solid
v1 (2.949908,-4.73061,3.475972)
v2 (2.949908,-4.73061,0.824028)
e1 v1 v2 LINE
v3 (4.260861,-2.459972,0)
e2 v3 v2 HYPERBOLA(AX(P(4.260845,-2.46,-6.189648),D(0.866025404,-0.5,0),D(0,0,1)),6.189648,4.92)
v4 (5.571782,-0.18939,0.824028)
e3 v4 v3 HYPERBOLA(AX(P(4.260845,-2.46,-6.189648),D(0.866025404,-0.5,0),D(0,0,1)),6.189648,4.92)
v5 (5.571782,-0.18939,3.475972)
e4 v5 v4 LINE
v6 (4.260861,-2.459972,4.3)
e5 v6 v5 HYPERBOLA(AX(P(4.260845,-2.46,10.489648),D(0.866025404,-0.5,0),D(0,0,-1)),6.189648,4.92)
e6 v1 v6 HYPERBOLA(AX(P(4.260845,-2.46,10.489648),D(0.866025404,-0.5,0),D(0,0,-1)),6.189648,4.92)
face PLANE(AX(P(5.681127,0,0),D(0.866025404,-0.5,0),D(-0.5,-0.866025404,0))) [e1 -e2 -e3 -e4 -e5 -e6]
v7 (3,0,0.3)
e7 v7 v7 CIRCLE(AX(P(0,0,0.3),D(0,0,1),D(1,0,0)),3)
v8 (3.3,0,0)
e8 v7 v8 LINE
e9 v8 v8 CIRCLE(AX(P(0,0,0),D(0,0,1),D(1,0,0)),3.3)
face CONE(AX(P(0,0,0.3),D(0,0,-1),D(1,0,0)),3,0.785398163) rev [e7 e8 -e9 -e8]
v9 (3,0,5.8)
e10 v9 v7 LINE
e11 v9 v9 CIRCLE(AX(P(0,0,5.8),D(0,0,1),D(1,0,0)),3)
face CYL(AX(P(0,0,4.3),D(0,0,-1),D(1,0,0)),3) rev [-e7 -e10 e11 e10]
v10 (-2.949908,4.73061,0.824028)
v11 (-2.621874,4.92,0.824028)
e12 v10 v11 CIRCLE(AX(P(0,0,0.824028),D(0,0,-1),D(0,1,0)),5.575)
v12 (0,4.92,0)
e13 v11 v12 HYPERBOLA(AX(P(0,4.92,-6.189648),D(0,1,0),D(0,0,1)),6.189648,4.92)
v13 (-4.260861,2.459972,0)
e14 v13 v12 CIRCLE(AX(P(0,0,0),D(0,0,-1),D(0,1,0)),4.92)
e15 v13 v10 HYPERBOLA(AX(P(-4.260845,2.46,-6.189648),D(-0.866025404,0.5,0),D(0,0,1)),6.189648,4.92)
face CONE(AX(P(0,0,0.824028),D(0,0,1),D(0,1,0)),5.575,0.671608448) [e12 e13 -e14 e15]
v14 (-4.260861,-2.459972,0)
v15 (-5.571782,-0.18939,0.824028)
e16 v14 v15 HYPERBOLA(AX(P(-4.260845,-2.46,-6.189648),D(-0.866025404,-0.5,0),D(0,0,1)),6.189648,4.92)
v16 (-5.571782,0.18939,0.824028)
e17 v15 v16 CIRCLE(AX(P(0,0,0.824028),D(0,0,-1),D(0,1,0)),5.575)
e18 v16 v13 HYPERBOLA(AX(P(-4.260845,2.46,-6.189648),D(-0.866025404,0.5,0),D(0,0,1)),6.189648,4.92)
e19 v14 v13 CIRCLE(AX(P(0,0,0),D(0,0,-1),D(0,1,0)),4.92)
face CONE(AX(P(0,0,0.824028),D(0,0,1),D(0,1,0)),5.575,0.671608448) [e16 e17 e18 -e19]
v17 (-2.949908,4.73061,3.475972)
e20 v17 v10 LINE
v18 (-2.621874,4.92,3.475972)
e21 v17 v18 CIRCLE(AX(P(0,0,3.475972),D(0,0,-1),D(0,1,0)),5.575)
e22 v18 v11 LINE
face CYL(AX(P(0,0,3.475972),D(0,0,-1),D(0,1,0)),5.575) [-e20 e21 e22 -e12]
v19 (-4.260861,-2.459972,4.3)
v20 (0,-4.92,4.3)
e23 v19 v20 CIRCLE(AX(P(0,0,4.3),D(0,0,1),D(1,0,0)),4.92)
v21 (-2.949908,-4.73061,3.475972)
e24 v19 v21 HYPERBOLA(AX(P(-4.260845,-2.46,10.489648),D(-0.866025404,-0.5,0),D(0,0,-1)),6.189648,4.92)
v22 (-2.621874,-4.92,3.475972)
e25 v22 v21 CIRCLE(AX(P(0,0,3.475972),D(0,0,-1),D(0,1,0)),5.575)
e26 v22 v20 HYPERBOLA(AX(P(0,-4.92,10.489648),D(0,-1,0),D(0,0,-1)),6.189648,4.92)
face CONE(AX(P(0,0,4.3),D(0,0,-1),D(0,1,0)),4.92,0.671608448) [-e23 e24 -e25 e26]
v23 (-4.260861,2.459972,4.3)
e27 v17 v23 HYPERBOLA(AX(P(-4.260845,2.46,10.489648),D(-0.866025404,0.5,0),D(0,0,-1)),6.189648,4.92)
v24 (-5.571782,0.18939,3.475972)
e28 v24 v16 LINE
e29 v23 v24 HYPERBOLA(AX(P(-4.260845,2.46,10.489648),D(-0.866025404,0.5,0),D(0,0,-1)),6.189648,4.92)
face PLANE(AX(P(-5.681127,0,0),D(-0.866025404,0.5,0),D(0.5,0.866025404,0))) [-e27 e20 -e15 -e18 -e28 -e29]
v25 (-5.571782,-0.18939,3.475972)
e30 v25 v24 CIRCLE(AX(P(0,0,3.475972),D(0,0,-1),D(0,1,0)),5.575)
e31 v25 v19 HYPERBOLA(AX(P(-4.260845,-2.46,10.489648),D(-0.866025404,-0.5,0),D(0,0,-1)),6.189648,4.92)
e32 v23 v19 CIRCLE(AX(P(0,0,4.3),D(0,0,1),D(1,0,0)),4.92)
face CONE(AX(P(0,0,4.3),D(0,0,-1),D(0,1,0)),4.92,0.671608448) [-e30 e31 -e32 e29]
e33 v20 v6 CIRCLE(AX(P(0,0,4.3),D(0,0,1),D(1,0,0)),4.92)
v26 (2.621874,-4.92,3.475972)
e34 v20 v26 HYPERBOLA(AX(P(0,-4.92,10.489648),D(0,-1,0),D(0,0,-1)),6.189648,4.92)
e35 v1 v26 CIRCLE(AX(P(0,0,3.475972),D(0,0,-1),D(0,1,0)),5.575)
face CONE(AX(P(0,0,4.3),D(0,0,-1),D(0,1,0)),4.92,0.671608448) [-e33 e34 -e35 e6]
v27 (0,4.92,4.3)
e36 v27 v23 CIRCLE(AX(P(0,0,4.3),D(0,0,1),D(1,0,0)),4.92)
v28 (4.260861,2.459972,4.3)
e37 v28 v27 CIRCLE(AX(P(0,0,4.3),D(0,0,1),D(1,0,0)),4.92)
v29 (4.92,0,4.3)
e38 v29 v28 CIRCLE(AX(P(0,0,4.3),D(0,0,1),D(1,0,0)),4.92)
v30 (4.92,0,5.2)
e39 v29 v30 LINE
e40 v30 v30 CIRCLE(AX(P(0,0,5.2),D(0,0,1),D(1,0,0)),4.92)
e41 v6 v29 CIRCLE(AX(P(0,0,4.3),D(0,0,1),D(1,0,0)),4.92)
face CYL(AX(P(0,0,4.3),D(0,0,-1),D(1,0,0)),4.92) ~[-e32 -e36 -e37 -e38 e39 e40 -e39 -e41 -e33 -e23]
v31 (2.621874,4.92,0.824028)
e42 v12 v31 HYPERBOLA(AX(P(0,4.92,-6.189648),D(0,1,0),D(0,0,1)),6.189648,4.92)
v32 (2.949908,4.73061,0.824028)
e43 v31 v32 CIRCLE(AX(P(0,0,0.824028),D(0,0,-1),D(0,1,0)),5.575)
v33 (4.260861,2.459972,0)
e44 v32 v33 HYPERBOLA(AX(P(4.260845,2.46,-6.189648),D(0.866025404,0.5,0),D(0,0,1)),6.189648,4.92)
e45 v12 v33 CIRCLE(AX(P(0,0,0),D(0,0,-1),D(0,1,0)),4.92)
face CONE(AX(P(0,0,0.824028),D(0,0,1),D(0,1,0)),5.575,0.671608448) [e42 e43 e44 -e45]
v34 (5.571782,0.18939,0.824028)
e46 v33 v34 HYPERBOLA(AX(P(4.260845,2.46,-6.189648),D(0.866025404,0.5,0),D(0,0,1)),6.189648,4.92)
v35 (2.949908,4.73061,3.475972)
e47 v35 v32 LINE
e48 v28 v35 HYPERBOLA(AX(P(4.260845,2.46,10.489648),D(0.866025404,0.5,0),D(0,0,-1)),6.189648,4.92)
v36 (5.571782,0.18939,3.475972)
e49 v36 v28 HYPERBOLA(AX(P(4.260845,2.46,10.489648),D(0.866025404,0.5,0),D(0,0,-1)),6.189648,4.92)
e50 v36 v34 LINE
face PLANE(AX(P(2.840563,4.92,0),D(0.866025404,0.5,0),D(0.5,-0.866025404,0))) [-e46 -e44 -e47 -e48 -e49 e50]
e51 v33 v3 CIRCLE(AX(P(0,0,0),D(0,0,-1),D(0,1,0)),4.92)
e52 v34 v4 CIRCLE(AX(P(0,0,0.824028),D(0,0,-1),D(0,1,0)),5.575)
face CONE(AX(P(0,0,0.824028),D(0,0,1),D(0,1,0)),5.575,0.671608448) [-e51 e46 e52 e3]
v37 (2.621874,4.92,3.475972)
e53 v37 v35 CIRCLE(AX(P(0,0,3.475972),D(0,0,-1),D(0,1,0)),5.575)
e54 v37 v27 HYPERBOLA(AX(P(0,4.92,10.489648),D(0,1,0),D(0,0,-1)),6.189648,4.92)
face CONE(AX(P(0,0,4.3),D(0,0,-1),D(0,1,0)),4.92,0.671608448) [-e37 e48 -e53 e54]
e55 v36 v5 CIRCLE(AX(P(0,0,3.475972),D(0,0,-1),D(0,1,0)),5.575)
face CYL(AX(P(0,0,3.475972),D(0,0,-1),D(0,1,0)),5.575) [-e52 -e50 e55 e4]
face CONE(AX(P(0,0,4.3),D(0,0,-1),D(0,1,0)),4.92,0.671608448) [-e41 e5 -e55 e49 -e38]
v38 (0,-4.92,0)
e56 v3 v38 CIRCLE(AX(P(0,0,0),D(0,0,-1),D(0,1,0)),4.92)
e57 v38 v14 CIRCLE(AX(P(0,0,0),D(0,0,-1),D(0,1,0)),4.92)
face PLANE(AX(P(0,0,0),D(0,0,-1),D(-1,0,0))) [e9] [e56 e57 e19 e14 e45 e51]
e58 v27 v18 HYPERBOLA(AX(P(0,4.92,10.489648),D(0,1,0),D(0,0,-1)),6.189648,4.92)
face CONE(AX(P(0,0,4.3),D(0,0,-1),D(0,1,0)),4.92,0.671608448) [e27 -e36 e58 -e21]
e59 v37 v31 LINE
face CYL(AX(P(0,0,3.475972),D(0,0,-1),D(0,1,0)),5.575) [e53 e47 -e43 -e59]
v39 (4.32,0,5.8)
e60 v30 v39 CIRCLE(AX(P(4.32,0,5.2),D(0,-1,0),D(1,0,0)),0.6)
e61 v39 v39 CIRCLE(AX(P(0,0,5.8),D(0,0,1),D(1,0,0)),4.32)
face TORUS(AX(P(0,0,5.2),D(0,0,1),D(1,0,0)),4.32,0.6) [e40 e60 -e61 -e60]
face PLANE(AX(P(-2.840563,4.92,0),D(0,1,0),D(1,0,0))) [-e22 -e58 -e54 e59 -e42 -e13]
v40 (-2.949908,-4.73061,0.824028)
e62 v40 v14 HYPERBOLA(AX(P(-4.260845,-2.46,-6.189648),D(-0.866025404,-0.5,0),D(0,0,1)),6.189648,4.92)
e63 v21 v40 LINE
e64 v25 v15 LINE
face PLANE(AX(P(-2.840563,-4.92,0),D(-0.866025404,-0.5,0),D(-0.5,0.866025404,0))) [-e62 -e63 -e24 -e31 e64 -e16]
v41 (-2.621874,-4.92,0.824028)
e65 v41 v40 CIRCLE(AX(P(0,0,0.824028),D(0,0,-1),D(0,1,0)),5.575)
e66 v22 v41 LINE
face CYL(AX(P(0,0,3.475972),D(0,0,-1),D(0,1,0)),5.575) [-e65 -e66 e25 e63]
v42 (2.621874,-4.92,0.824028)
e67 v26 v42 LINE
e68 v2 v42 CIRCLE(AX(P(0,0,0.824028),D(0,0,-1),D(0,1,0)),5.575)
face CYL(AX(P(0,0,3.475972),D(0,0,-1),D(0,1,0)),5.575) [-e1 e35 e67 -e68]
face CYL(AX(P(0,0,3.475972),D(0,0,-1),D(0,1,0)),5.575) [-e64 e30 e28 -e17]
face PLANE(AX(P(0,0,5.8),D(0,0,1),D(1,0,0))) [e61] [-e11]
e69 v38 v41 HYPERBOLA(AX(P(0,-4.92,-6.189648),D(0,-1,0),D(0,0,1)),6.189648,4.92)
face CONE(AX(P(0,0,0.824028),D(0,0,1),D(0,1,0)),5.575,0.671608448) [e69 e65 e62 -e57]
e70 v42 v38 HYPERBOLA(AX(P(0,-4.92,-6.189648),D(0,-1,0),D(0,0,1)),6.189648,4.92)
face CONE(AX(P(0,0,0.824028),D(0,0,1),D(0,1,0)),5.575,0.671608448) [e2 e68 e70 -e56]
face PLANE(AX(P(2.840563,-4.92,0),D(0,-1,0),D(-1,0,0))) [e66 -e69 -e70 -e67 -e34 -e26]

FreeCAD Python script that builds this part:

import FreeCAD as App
import Part
import Sketcher

V = App.Vector
Q = App.Units.Quantity


def edges_at(feature, points):
    """Names of the edges that pass closest to the given points."""
    edges = feature.Shape.Edges
    near = lambda p: min(range(len(edges)), key=lambda i: edges[i].distToShape(Part.Vertex(*p))[0])
    return sorted({f"Edge{near(p) + 1}" for p in points})

doc = App.newDocument("Part")
params = doc.addObject("Spreadsheet::Sheet", "Params")
for row, (alias, value) in enumerate([
    ("sketch1_diameter", "6 mm"),
    ("pad1_length", "4.3 mm"),
    ("sketch2_diameter", "6 mm"),
    ("sketch2_diameter2", "9.84 mm"),
    ("pad2_length", "1.5 mm"),
    ("fillet_radius", "0.6 mm"),
    ("sketch3_height", "4.3 mm"),
    ("groove_angle", "360 deg"),
    ("chamfer_size", "0.3 mm"),
], start=1):
    params.set(f"A{row}", alias)
    params.set(f"B{row}", "=" + value)
    params.setAlias(f"B{row}", alias)

body = doc.addObject("PartDesign::Body", "Body")

# Sketch on XY plane
sketch1 = doc.addObject("Sketcher::SketchObject", "Sketch")
body.addObject(sketch1)
sketch1.AttachmentSupport = (doc.XY_Plane, [""])
sketch1.MapMode = "FlatFace"
sketch1.addGeometry([
    Part.LineSegment(V(2.840563, 4.92, 0), V(-2.840563, 4.92, 0)),  # 0
    Part.LineSegment(V(-2.840563, 4.92, 0), V(-5.681127, 0, 0)),  # 1
    Part.LineSegment(V(-5.681127, 0, 0), V(-2.840563, -4.92, 0)),  # 2
    Part.LineSegment(V(-2.840563, -4.92, 0), V(2.840563, -4.92, 0)),  # 3
    Part.LineSegment(V(2.840563, -4.92, 0), V(5.681127, 0, 0)),  # 4
    Part.LineSegment(V(5.681127, 0, 0), V(2.840563, 4.92, 0)),  # 5
    Part.Circle(V(0, 0, 0), V(0, 0, 1), 3),  # 6
], False)
sketch1.addConstraint([
    Sketcher.Constraint("Coincident", 0, 2, 1, 1),
    Sketcher.Constraint("Coincident", 1, 2, 2, 1),
    Sketcher.Constraint("Coincident", 2, 2, 3, 1),
    Sketcher.Constraint("Coincident", 3, 2, 4, 1),
    Sketcher.Constraint("Coincident", 4, 2, 5, 1),
    Sketcher.Constraint("Coincident", 5, 2, 0, 1),
    Sketcher.Constraint("Horizontal", 0),
    Sketcher.Constraint("Horizontal", 3),
    Sketcher.Constraint("Coincident", 6, 3, -1, 1),
    Sketcher.Constraint("Symmetric", 0, 2, 3, 2, -1, 1),
    Sketcher.Constraint("Symmetric", 1, 2, 4, 2, -1, 1),
    Sketcher.Constraint("PointOnObject", 1, 2, -1),
    Sketcher.Constraint("Parallel", 2, 5),
    Sketcher.Constraint("Vertical", 0, 2, 2, 2),
    Sketcher.Constraint("Diameter", 6, 6.0),
    Sketcher.Constraint("Angle", 1, Q("-120 deg")),
    Sketcher.Constraint("DistanceY", -1, 1, 0, 2, 4.92),
    Sketcher.Constraint("DistanceX", 0, 2, 0, 1, 5.681127),
])
sketch1.setExpression("Constraints[14]", "Params.sketch1_diameter")
pad1 = doc.addObject("PartDesign::Pad", "Pad")
body.addObject(pad1)
pad1.Profile = sketch1
pad1.setExpression("Length", "Params.pad1_length")

# Sketch on XY plane
sketch2 = doc.addObject("Sketcher::SketchObject", "Sketch001")
body.addObject(sketch2)
sketch2.AttachmentSupport = (doc.XY_Plane, [""])
sketch2.MapMode = "FlatFace"
sketch2.AttachmentOffset = App.Placement(V(0, 0, 4.3), App.Rotation())
sketch2.addGeometry([
    Part.Circle(V(0, 0, 0), V(0, 0, 1), 4.92),
    Part.Circle(V(0, 0, 0), V(0, 0, 1), 3),
], False)
sketch2.addConstraint([
    Sketcher.Constraint("Coincident", 0, 3, -1, 1),
    Sketcher.Constraint("Coincident", 1, 3, -1, 1),
    Sketcher.Constraint("Diameter", 1, 6.0),
    Sketcher.Constraint("Diameter", 0, 9.84),
])
sketch2.setExpression("Constraints[2]", "Params.sketch2_diameter")
sketch2.setExpression("Constraints[3]", "Params.sketch2_diameter2")
pad2 = doc.addObject("PartDesign::Pad", "Pad001")
body.addObject(pad2)
pad2.Profile = sketch2
pad2.setExpression("Length", "Params.pad2_length")
doc.recompute()

fillet = doc.addObject("PartDesign::Fillet", "Fillet")
body.addObject(fillet)
fillet.Base = (pad2, edges_at(pad2, [(-4.92, 0, 5.8)]))
fillet.setExpression("Radius", "Params.fillet_radius")

# Sketch on YZ plane
sketch3 = doc.addObject("Sketcher::SketchObject", "Sketch002")
body.addObject(sketch3)
sketch3.AttachmentSupport = (doc.YZ_Plane, [""])
sketch3.MapMode = "FlatFace"
sketch3.addGeometry([
    Part.LineSegment(V(4.92, 4.3, 0), V(5.575, 3.475972, 0)),  # 0
    Part.LineSegment(V(5.575, 3.475972, 0), V(5.575, 0.824028, 0)),  # 1
    Part.LineSegment(V(5.575, 0.824028, 0), V(4.92, 0, 0)),  # 2
    Part.LineSegment(V(4.92, 0, 0), V(6.412885, 0, 0)),  # 3
    Part.LineSegment(V(6.412885, 0, 0), V(6.412885, 4.3, 0)),  # 4
    Part.LineSegment(V(6.412885, 4.3, 0), V(4.92, 4.3, 0)),  # 5
], False)
sketch3.addConstraint([
    Sketcher.Constraint("Coincident", 0, 2, 1, 1),
    Sketcher.Constraint("Coincident", 1, 2, 2, 1),
    Sketcher.Constraint("Coincident", 2, 2, 3, 1),
    Sketcher.Constraint("Coincident", 3, 2, 4, 1),
    Sketcher.Constraint("Coincident", 4, 2, 5, 1),
    Sketcher.Constraint("Coincident", 5, 2, 0, 1),
    Sketcher.Constraint("Vertical", 1),
    Sketcher.Constraint("Horizontal", 3),
    Sketcher.Constraint("Vertical", 4),
    Sketcher.Constraint("Horizontal", 5),
    Sketcher.Constraint("PointOnObject", 2, 2, -1),
    Sketcher.Constraint("Vertical", 2, 2, 5, 2),
    Sketcher.Constraint("Equal", 0, 2),
    Sketcher.Constraint("DistanceY", 4, 1, 4, 2, 4.3),
    Sketcher.Constraint("DistanceX", -1, 1, 2, 2, 4.92),
    Sketcher.Constraint("DistanceX", -1, 1, 0, 2, 5.575),
    Sketcher.Constraint("Distance", 0, 1.052638),
    Sketcher.Constraint("DistanceX", 3, 1, 3, 2, 1.492885),
])
sketch3.setExpression("Constraints[13]", "Params.sketch3_height")
groove = doc.addObject("PartDesign::Groove", "Groove")
body.addObject(groove)
groove.Profile = sketch3
groove.ReferenceAxis = (sketch3, ["V_Axis"])
groove.setExpression("Angle", "Params.groove_angle")
doc.recompute()

chamfer = doc.addObject("PartDesign::Chamfer", "Chamfer")
body.addObject(chamfer)
chamfer.Base = (groove, edges_at(groove, [(-3, 0, 0)]))
chamfer.setExpression("Size", "Params.chamfer_size")

doc.recompute()
